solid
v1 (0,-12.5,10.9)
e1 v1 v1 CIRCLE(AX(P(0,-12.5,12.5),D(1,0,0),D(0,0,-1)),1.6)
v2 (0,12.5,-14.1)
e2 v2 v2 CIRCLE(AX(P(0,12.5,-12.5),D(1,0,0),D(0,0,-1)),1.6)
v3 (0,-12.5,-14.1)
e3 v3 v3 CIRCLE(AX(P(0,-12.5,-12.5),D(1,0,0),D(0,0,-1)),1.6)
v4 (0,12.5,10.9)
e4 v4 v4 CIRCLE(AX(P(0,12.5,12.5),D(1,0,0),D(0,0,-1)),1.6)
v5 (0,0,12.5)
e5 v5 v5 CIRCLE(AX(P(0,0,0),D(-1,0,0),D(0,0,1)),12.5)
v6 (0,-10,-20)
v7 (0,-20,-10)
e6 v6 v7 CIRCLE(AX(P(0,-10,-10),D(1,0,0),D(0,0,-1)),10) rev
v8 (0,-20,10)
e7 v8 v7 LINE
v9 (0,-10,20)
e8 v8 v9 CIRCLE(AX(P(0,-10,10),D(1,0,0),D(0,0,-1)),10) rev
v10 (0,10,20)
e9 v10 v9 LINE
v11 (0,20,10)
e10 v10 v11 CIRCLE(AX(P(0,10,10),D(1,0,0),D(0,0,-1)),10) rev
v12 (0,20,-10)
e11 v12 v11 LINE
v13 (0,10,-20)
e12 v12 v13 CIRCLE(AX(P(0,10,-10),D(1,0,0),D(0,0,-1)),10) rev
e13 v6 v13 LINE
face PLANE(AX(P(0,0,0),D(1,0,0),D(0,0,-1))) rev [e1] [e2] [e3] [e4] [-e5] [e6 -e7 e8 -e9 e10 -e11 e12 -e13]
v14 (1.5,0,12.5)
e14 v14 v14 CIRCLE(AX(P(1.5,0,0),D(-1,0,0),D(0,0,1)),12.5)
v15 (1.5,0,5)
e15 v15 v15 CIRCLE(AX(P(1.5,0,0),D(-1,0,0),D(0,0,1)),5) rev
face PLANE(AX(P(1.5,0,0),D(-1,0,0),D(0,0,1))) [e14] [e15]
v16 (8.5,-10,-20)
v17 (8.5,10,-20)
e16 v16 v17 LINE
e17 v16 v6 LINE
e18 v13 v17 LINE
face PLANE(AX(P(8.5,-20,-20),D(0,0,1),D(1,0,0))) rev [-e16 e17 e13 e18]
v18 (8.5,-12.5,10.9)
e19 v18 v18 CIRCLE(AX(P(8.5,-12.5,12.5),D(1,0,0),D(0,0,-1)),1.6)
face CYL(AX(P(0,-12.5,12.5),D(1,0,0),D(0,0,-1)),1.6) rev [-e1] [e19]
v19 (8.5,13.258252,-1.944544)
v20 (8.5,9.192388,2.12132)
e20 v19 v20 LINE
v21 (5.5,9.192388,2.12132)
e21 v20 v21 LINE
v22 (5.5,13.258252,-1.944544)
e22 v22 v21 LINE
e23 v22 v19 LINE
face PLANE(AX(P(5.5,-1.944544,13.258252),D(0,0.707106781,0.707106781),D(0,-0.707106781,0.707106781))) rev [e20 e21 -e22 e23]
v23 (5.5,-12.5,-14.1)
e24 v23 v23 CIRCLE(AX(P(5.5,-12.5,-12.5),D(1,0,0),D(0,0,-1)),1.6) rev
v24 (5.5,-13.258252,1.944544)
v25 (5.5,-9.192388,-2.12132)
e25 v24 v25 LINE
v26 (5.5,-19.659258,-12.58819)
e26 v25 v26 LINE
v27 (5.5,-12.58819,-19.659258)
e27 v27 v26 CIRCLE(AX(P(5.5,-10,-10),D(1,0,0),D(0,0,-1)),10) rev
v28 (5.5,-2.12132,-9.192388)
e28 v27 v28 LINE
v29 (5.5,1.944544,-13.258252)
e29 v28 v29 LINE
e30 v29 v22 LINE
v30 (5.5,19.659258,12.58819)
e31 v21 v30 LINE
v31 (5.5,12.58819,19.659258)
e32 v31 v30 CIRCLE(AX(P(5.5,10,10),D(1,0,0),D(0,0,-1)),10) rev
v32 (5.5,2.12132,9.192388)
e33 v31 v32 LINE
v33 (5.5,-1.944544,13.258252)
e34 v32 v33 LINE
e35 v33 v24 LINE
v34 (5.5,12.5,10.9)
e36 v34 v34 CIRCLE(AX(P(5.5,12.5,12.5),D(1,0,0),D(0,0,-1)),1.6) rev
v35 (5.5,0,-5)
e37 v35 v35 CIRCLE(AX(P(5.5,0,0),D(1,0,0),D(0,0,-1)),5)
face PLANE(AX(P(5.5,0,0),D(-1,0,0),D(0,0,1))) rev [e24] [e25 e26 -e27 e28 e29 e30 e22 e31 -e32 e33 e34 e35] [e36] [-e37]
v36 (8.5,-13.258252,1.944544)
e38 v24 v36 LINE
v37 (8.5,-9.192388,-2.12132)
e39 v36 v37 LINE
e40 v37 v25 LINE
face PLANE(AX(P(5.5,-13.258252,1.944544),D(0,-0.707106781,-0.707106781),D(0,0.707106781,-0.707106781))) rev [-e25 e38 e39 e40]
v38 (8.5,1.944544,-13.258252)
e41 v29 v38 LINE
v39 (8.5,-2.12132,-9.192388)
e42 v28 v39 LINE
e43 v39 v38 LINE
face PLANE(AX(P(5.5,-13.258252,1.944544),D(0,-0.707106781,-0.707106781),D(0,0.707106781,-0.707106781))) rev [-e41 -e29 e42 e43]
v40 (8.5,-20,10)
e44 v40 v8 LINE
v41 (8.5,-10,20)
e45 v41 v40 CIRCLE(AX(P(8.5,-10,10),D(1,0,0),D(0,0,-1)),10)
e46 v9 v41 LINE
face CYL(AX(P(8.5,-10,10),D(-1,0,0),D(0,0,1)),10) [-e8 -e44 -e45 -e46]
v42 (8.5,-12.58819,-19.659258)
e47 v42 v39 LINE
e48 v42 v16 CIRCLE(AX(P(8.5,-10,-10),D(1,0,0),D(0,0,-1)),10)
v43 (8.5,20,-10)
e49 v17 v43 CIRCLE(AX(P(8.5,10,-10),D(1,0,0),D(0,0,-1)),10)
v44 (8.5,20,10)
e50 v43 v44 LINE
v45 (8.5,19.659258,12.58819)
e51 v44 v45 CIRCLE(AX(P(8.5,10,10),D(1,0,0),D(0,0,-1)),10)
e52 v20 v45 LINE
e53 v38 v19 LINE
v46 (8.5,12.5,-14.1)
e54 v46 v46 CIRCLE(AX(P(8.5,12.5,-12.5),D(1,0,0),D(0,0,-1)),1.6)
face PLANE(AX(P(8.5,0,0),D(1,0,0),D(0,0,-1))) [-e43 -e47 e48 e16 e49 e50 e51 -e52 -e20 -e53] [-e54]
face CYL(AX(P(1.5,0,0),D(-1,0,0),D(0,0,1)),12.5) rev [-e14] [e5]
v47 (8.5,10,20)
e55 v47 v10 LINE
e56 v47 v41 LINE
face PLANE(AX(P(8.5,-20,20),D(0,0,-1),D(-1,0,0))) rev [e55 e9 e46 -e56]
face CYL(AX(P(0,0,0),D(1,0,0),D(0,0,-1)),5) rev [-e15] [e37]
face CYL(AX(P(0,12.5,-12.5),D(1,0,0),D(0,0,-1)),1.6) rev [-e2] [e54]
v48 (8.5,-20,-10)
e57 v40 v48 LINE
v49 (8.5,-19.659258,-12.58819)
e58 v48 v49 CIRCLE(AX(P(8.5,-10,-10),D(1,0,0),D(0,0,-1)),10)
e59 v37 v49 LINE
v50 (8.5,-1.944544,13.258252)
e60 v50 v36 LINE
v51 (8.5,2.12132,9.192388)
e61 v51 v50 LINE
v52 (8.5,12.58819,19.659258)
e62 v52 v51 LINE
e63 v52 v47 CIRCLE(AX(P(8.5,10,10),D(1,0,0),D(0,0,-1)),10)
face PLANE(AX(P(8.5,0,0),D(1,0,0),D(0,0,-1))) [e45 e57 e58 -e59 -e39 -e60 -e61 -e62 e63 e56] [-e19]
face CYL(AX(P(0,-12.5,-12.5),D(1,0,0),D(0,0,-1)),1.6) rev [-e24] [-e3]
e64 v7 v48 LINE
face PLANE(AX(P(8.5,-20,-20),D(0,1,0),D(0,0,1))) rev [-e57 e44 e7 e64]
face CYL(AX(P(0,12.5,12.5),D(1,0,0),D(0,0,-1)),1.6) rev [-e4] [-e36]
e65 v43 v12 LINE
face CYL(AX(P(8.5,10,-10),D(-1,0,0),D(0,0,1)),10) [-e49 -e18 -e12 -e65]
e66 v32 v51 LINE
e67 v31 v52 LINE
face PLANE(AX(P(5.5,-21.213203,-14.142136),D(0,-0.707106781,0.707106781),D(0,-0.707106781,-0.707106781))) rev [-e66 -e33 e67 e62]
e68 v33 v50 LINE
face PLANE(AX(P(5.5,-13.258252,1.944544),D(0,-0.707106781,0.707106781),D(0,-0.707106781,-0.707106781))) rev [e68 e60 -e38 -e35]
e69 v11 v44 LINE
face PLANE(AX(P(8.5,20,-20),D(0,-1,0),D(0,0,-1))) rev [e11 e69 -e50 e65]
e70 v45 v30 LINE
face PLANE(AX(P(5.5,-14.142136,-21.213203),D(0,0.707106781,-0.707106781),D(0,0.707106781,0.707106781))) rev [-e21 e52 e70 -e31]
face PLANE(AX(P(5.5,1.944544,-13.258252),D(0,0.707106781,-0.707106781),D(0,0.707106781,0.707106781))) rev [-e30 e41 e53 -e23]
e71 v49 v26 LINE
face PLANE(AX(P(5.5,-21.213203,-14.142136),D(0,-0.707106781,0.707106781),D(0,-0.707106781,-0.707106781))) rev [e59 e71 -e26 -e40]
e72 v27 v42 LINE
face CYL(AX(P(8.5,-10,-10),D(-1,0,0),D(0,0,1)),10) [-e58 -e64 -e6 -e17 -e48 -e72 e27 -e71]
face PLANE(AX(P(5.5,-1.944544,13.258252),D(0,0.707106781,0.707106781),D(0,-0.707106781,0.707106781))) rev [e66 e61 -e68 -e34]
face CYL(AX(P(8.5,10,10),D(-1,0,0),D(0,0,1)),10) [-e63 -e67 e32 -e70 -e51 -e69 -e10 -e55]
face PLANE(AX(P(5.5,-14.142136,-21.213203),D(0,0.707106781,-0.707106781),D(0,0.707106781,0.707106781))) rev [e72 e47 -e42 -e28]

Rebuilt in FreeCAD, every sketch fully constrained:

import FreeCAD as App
import Part
import Sketcher
Q = App.Units.Quantity


def edges_at(feature, points):
    """Names of the edges that pass closest to the given points."""
    edges = feature.Shape.Edges
    near = lambda p: min(range(len(edges)), key=lambda i: edges[i].distToShape(Part.Vertex(*p))[0])
    return sorted({f"Edge{near(p) + 1}" for p in points})


def add_polygon(sketch, points):
    """Adds a closed chain of lines whose ends are joined by coincident constraints."""
    first, n = sketch.GeometryCount, len(points)
    for a, b in zip(points, points[1:] + points[:1]):
        sketch.addGeometry(Part.LineSegment(App.Vector(*a, 0), App.Vector(*b, 0)), False)
    for i in range(n):
        sketch.addConstraint(Sketcher.Constraint("Coincident", first + i, 2, first + (i + 1) % n, 1))

doc = App.newDocument("Part")
body = doc.addObject("PartDesign::Body", "Body")

sketch1 = body.newObject("Sketcher::SketchObject", "Sketch")
sketch1.AttachmentSupport = (doc.getObject("YZ_Plane"), [""])
sketch1.MapMode = "FlatFace"
add_polygon(sketch1, [(20, 20), (-20, 20), (-20, -20), (20, -20)])
sketch1.addConstraint(Sketcher.Constraint("Horizontal", 0))
sketch1.addConstraint(Sketcher.Constraint("Vertical", 1))
sketch1.addConstraint(Sketcher.Constraint("Horizontal", 2))
sketch1.addConstraint(Sketcher.Constraint("Vertical", 3))
sketch1.addConstraint(Sketcher.Constraint("Symmetric", 0, 2, 2, 2, -1, 1))
sketch1.addConstraint(Sketcher.Constraint("Equal", 2, 1))
sketch1.addConstraint(Sketcher.Constraint("DistanceX", 0, 2, 0, 1, 40.0))
pad1 = body.newObject("PartDesign::Pad", "Pad")
pad1.Profile = sketch1
pad1.Length = 8.5
doc.recompute()

fillet = body.newObject("PartDesign::Fillet", "Fillet")
fillet.Base = (pad1, edges_at(pad1, [
    (4.25, -20, -20),
    (4.25, -20, 20),
    (4.25, 20, 20),
    (4.25, 20, -20),
]))
fillet.Radius = 10

sketch2 = body.newObject("Sketcher::SketchObject", "Sketch001")
sketch2.AttachmentSupport = (doc.getObject("YZ_Plane"), [""])
sketch2.MapMode = "FlatFace"
sketch2.AttachmentOffset = App.Placement(App.Vector(0, 0, 8.5), App.Rotation())
add_polygon(sketch2, [(-13.258252, 1.944544), (1.944544, -13.258252), (13.258252, -1.944544), (-1.944544, 13.258252)])
sketch2.addConstraint(Sketcher.Constraint("Symmetric", 0, 2, 2, 2, -1, 1))
sketch2.addConstraint(Sketcher.Constraint("Symmetric", 1, 2, 3, 2, -1, 1))
sketch2.addConstraint(Sketcher.Constraint("Perpendicular", 0, 1))
sketch2.addConstraint(Sketcher.Constraint("Angle", 0, Q("-45 deg")))
sketch2.addConstraint(Sketcher.Constraint("Distance", 1, 16.0))
sketch2.addConstraint(Sketcher.Constraint("Distance", 0, 21.5))
pocket1 = body.newObject("PartDesign::Pocket", "Pocket")
pocket1.Profile = sketch2
pocket1.Length = 3

sketch3 = body.newObject("Sketcher::SketchObject", "Sketch002")
sketch3.AttachmentSupport = (doc.getObject("YZ_Plane"), [""])
sketch3.MapMode = "FlatFace"
sketch3.AttachmentOffset = App.Placement(App.Vector(0, 0, 5.5), App.Rotation())
sketch3.addGeometry(Part.Circle(App.Vector(0, 0, 0), App.Vector(0, 0, 1), 5), False)
sketch3.addConstraint(Sketcher.Constraint("Coincident", 0, 3, -1, 1))
sketch3.addConstraint(Sketcher.Constraint("Diameter", 0, 10.0))
pocket2 = body.newObject("PartDesign::Pocket", "Pocket001")
pocket2.Profile = sketch3
pocket2.Type = "ThroughAll"

sketch4 = body.newObject("Sketcher::SketchObject", "Sketch003")
sketch4.AttachmentSupport = (doc.getObject("YZ_Plane"), [""])
sketch4.MapMode = "FlatFace"
sketch4.AttachmentOffset = App.Placement(App.Vector(0, 0, 8.5), App.Rotation())
sketch4.addGeometry(Part.Circle(App.Vector(12.5, 12.5, 0), App.Vector(0, 0, 1), 1.6), False)
sketch4.addGeometry(Part.Circle(App.Vector(-12.5, 12.5, 0), App.Vector(0, 0, 1), 1.6), False)
sketch4.addGeometry(Part.Circle(App.Vector(-12.5, -12.5, 0), App.Vector(0, 0, 1), 1.6), False)
sketch4.addGeometry(Part.Circle(App.Vector(12.5, -12.5, 0), App.Vector(0, 0, 1), 1.6), False)
sketch4.addConstraint(Sketcher.Constraint("Equal", 0, 1))
sketch4.addConstraint(Sketcher.Constraint("Equal", 1, 2))
sketch4.addConstraint(Sketcher.Constraint("Equal", 2, 3))
sketch4.addConstraint(Sketcher.Constraint("Symmetric", 0, 3, 2, 3, -1, 1))
sketch4.addConstraint(Sketcher.Constraint("Symmetric", 1, 3, 3, 3, -1, 1))
sketch4.addConstraint(Sketcher.Constraint("Symmetric", 0, 3, 1, 3, -2))
sketch4.addConstraint(Sketcher.Constraint("Diameter", 0, 3.2))
sketch4.addConstraint(Sketcher.Constraint("DistanceX", 1, 3, 0, 3, 25.0))
sketch4.addConstraint(Sketcher.Constraint("DistanceY", 2, 3, 1, 3, 25.0))
pocket3 = body.newObject("PartDesign::Pocket", "Pocket002")
pocket3.Profile = sketch4
pocket3.Type = "ThroughAll"

sketch5 = body.newObject("Sketcher::SketchObject", "Sketch004")
sketch5.AttachmentSupport = (doc.getObject("YZ_Plane"), [""])
sketch5.MapMode = "FlatFace"
sketch5.AttachmentOffset = App.Placement(App.Vector(0, 0, 8.5), App.Rotation())
add_polygon(sketch5, [(14.142136, 21.213203), (-21.213203, -14.142136), (-14.142136, -21.213203), (21.213203, 14.142136)])
sketch5.addConstraint(Sketcher.Constraint("Symmetric", 0, 2, 2, 2, -1, 1))
sketch5.addConstraint(Sketcher.Constraint("Symmetric", 1, 2, 3, 2, -1, 1))
sketch5.addConstraint(Sketcher.Constraint("Perpendicular", 0, 1))
sketch5.addConstraint(Sketcher.Constraint("Angle", 0, Q("-135 deg")))
sketch5.addConstraint(Sketcher.Constraint("Distance", 0, 50.0))
sketch5.addConstraint(Sketcher.Constraint("Distance", 1, 10.0))
pocket4 = body.newObject("PartDesign::Pocket", "Pocket003")
pocket4.Profile = sketch5
pocket4.Length = 3

sketch6 = body.newObject("Sketcher::SketchObject", "Sketch005")
sketch6.AttachmentSupport = (doc.getObject("YZ_Plane"), [""])
sketch6.MapMode = "FlatFace"
sketch6.addGeometry(Part.Circle(App.Vector(0, 0, 0), App.Vector(0, 0, 1), 12.5), False)
sketch6.addConstraint(Sketcher.Constraint("Coincident", 0, 3, -1, 1))
sketch6.addConstraint(Sketcher.Constraint("Diameter", 0, 25.0))
pocket5 = body.newObject("PartDesign::Pocket", "Pocket004")
pocket5.Profile = sketch6
pocket5.Length = 1.5
pocket5.Reversed = True

doc.recompute()
